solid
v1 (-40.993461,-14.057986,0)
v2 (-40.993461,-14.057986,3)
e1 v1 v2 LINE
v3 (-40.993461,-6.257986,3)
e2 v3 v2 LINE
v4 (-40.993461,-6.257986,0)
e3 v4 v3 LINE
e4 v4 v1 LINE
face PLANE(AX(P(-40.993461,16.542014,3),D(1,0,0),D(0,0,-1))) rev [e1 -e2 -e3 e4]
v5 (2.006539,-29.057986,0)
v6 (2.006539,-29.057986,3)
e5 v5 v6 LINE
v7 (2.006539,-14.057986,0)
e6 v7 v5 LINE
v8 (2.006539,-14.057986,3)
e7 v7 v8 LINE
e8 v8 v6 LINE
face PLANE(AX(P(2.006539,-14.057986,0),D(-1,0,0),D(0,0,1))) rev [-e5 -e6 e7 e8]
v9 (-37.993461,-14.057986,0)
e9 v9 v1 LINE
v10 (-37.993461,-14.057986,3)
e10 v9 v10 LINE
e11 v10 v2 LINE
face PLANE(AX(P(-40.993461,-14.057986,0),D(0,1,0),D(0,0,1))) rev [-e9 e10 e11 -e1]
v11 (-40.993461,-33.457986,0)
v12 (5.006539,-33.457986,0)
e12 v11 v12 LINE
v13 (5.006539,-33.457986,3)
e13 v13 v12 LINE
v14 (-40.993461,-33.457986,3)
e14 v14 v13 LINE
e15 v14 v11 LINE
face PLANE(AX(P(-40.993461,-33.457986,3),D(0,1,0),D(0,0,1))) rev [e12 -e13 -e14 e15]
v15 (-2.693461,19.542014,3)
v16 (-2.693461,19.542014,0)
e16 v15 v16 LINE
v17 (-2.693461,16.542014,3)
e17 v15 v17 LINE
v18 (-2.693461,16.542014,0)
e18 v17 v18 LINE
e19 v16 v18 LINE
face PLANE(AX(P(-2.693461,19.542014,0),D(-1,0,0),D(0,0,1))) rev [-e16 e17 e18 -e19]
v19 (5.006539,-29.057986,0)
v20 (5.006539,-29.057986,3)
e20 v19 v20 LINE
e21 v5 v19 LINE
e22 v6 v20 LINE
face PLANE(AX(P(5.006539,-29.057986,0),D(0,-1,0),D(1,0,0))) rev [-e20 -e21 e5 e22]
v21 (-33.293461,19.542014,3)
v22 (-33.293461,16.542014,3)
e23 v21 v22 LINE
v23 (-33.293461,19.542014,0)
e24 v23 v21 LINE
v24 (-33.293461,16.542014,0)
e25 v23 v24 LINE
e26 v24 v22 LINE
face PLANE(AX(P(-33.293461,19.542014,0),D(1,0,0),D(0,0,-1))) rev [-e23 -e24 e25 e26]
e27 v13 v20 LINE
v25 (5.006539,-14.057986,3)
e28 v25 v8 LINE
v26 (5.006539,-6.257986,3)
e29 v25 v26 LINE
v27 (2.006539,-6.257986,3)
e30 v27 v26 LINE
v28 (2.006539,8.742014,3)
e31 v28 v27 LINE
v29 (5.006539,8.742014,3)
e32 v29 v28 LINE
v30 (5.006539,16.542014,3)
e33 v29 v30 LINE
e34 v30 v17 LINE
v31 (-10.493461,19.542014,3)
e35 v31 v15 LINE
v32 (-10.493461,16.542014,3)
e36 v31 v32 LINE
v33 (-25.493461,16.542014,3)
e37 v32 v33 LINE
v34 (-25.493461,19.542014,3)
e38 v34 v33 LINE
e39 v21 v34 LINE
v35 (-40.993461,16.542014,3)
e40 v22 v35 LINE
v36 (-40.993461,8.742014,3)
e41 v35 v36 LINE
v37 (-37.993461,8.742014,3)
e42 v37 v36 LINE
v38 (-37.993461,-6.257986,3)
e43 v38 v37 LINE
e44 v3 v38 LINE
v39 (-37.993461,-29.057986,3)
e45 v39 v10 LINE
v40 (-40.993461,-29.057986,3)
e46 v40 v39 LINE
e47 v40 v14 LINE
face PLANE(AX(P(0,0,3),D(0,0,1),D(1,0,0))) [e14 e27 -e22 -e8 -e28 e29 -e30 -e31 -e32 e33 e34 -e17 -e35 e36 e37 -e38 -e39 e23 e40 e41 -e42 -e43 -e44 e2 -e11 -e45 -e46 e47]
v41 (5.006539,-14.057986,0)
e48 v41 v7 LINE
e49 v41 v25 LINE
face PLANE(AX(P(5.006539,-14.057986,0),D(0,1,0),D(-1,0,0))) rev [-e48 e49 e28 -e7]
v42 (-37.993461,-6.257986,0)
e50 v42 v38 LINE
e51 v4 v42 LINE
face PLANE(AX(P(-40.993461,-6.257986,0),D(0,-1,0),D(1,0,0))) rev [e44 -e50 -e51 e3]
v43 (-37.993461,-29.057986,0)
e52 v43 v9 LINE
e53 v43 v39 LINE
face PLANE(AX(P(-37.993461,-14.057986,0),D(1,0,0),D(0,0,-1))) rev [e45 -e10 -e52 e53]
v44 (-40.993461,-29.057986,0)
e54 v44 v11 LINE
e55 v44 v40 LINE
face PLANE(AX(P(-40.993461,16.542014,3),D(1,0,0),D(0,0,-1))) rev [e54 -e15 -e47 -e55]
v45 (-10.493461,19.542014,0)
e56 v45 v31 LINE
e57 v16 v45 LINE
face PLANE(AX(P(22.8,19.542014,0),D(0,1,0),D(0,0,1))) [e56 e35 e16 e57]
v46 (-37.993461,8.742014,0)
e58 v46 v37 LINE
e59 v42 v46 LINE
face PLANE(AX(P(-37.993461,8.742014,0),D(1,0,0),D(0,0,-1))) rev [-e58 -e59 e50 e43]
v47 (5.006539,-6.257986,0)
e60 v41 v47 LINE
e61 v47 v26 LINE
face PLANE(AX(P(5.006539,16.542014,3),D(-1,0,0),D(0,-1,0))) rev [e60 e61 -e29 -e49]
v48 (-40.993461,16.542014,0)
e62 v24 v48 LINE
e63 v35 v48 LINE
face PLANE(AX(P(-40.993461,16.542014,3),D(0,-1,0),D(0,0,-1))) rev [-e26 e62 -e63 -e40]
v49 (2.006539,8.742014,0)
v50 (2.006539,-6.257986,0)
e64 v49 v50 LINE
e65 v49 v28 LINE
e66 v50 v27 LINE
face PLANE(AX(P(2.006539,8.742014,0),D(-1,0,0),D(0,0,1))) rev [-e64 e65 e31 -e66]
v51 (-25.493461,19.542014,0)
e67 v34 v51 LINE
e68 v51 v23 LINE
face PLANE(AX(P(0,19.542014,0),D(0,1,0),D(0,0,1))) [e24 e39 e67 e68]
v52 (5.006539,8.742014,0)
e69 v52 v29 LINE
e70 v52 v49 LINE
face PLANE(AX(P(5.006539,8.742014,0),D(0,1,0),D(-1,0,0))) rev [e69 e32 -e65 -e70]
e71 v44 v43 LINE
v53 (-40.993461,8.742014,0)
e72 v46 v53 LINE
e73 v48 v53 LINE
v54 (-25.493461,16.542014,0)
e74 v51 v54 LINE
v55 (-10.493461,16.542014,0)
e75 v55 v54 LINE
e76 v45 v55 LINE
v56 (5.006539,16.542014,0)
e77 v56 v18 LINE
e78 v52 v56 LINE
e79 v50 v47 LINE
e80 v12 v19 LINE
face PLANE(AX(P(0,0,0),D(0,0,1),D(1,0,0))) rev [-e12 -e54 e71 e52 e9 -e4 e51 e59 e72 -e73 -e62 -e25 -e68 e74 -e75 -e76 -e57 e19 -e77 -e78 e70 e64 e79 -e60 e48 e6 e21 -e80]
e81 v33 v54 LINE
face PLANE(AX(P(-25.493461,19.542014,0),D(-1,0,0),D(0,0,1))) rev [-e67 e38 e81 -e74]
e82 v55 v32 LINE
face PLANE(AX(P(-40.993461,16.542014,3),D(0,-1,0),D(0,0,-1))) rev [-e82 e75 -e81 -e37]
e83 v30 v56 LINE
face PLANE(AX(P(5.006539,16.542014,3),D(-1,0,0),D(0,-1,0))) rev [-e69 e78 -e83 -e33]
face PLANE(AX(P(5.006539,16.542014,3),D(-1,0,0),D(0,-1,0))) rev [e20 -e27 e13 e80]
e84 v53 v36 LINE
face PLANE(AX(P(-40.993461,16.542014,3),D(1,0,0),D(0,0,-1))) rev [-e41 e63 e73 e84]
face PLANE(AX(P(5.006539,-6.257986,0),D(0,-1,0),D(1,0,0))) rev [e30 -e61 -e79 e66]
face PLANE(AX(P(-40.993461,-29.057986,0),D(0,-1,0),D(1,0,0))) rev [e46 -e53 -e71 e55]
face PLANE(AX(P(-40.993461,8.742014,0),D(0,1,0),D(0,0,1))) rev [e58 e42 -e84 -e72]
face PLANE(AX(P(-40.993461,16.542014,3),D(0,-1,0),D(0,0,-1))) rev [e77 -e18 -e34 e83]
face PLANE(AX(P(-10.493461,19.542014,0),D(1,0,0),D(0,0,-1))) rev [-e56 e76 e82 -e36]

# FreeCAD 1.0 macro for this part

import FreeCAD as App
import Part
import Sketcher

doc = App.newDocument("Part")
params = doc.addObject("Spreadsheet::Sheet", "Params")
for row, (alias, value) in enumerate([
    ("sketch1_width", "46 mm"),
    ("sketch1_height", "50 mm"),
    ("pad1_length", "3 mm"),
    ("sketch2_width", "3 mm"),
    ("sketch2_height", "15 mm"),
    ("linearpattern_pitch", "22.8 mm"),
    ("sketch3_height", "3 mm"),
    ("sketch3_width", "7.8 mm"),
    ("pad2_length", "3 mm"),
    ("linearpattern2_pitch", "22.8 mm"),
], start=1):
    params.set(f"A{row}", alias)
    params.set(f"B{row}", "=" + value)
    params.setAlias(f"B{row}", alias)

body = doc.addObject("PartDesign::Body", "Body")

sketch1 = body.newObject("Sketcher::SketchObject", "Sketch")
sketch1.AttachmentSupport = (doc.getObject("XY_Plane"), [""])
sketch1.MapMode = "FlatFace"
sketch1.addGeometry(Part.LineSegment(App.Vector(-40.993461, 16.542014, 0), App.Vector(-40.993461, -33.457986, 0)), False)
sketch1.addGeometry(Part.LineSegment(App.Vector(-40.993461, -33.457986, 0), App.Vector(5.006539, -33.457986, 0)), False)
sketch1.addGeometry(Part.LineSegment(App.Vector(5.006539, -33.457986, 0), App.Vector(5.006539, 16.542014, 0)), False)
sketch1.addGeometry(Part.LineSegment(App.Vector(5.006539, 16.542014, 0), App.Vector(-40.993461, 16.542014, 0)), False)
sketch1.addConstraint(Sketcher.Constraint("Coincident", 0, 2, 1, 1))
sketch1.addConstraint(Sketcher.Constraint("Coincident", 1, 2, 2, 1))
sketch1.addConstraint(Sketcher.Constraint("Coincident", 2, 2, 3, 1))
sketch1.addConstraint(Sketcher.Constraint("Coincident", 3, 2, 0, 1))
sketch1.addConstraint(Sketcher.Constraint("Vertical", 0))
sketch1.addConstraint(Sketcher.Constraint("Horizontal", 1))
sketch1.addConstraint(Sketcher.Constraint("Vertical", 2))
sketch1.addConstraint(Sketcher.Constraint("Horizontal", 3))
sketch1.addConstraint(Sketcher.Constraint("DistanceX", 1, 1, 1, 2, 46.0))
sketch1.addConstraint(Sketcher.Constraint("DistanceY", 0, 2, 0, 1, 50.0))
sketch1.addConstraint(Sketcher.Constraint("DistanceX", 0, 2, -1, 1, 40.993461))
sketch1.addConstraint(Sketcher.Constraint("DistanceY", 0, 2, -1, 1, 33.457986))
sketch1.setExpression("Constraints[8]", "Params.sketch1_width")
sketch1.setExpression("Constraints[9]", "Params.sketch1_height")
pad1 = body.newObject("PartDesign::Pad", "Pad")
pad1.Profile = sketch1
pad1.setExpression("Length", "Params.pad1_length")

sketch2 = body.newObject("Sketcher::SketchObject", "Sketch001")
sketch2.AttachmentSupport = (doc.getObject("XY_Plane"), [""])
sketch2.MapMode = "FlatFace"
sketch2.AttachmentOffset = App.Placement(App.Vector(0, 0, 3), App.Rotation())
sketch2.addGeometry(Part.LineSegment(App.Vector(-40.993461, 8.742014, 0), App.Vector(-40.993461, -6.257986, 0)), False)
sketch2.addGeometry(Part.LineSegment(App.Vector(-40.993461, -6.257986, 0), App.Vector(-37.993461, -6.257986, 0)), False)
sketch2.addGeometry(Part.LineSegment(App.Vector(-37.993461, -6.257986, 0), App.Vector(-37.993461, 8.742014, 0)), False)
sketch2.addGeometry(Part.LineSegment(App.Vector(-37.993461, 8.742014, 0), App.Vector(-40.993461, 8.742014, 0)), False)
sketch2.addGeometry(Part.LineSegment(App.Vector(2.006539, 8.742014, 0), App.Vector(2.006539, -6.257986, 0)), False)
sketch2.addGeometry(Part.LineSegment(App.Vector(2.006539, -6.257986, 0), App.Vector(5.006539, -6.257986, 0)), False)
sketch2.addGeometry(Part.LineSegment(App.Vector(5.006539, -6.257986, 0), App.Vector(5.006539, 8.742014, 0)), False)
sketch2.addGeometry(Part.LineSegment(App.Vector(5.006539, 8.742014, 0), App.Vector(2.006539, 8.742014, 0)), False)
sketch2.addConstraint(Sketcher.Constraint("Coincident", 0, 2, 1, 1))
sketch2.addConstraint(Sketcher.Constraint("Coincident", 1, 2, 2, 1))
sketch2.addConstraint(Sketcher.Constraint("Coincident", 2, 2, 3, 1))
sketch2.addConstraint(Sketcher.Constraint("Coincident", 3, 2, 0, 1))
sketch2.addConstraint(Sketcher.Constraint("Coincident", 4, 2, 5, 1))
sketch2.addConstraint(Sketcher.Constraint("Coincident", 5, 2, 6, 1))
sketch2.addConstraint(Sketcher.Constraint("Coincident", 6, 2, 7, 1))
sketch2.addConstraint(Sketcher.Constraint("Coincident", 7, 2, 4, 1))
sketch2.addConstraint(Sketcher.Constraint("Vertical", 0))
sketch2.addConstraint(Sketcher.Constraint("Horizontal", 1))
sketch2.addConstraint(Sketcher.Constraint("Vertical", 2))
sketch2.addConstraint(Sketcher.Constraint("Horizontal", 3))
sketch2.addConstraint(Sketcher.Constraint("Vertical", 4))
sketch2.addConstraint(Sketcher.Constraint("Horizontal", 5))
sketch2.addConstraint(Sketcher.Constraint("Vertical", 6))
sketch2.addConstraint(Sketcher.Constraint("Horizontal", 7))
sketch2.addConstraint(Sketcher.Constraint("Horizontal", 1, 2, 4, 2))
sketch2.addConstraint(Sketcher.Constraint("Horizontal", 3, 2, 6, 2))
sketch2.addConstraint(Sketcher.Constraint("Equal", 3, 5))
sketch2.addConstraint(Sketcher.Constraint("DistanceX", 1, 1, 1, 2, 3.0))
sketch2.addConstraint(Sketcher.Constraint("DistanceY", 0, 2, 0, 1, 15.0))
sketch2.addConstraint(Sketcher.Constraint("DistanceX", 1, 2, 4, 2, 40.0))
sketch2.addConstraint(Sketcher.Constraint("DistanceX", 0, 2, -1, 1, 40.993461))
sketch2.addConstraint(Sketcher.Constraint("DistanceY", 0, 2, -1, 1, 6.257986))
sketch2.setExpression("Constraints[19]", "Params.sketch2_width")
sketch2.setExpression("Constraints[20]", "Params.sketch2_height")
pocket1 = body.newObject("PartDesign::Pocket", "Pocket")
pocket1.Profile = sketch2
pocket1.Type = "ThroughAll"
doc.recompute()

linearpattern = body.newObject("PartDesign::LinearPattern", "LinearPattern")
linearpattern.Originals = [pocket1]
linearpattern.Direction = (doc.getObject("Y_Axis"), [""])
linearpattern.Mode = "offset"
linearpattern.setExpression("Offset", "Params.linearpattern_pitch")
linearpattern.Occurrences = 3
linearpattern.Reversed = True
body.Tip = linearpattern

sketch3 = body.newObject("Sketcher::SketchObject", "Sketch002")
sketch3.AttachmentSupport = (doc.getObject("XZ_Plane"), [""])
sketch3.MapMode = "FlatFace"
sketch3.AttachmentOffset = App.Placement(App.Vector(0, 0, -16.542014), App.Rotation())
sketch3.addGeometry(Part.LineSegment(App.Vector(-33.293461, 0, 0), App.Vector(-33.293461, 3, 0)), False)
sketch3.addGeometry(Part.LineSegment(App.Vector(-33.293461, 3, 0), App.Vector(-25.493461, 3, 0)), False)
sketch3.addGeometry(Part.LineSegment(App.Vector(-25.493461, 3, 0), App.Vector(-25.493461, 0, 0)), False)
sketch3.addGeometry(Part.LineSegment(App.Vector(-25.493461, 0, 0), App.Vector(-33.293461, 0, 0)), False)
sketch3.addConstraint(Sketcher.Constraint("Coincident", 0, 2, 1, 1))
sketch3.addConstraint(Sketcher.Constraint("Coincident", 1, 2, 2, 1))
sketch3.addConstraint(Sketcher.Constraint("Coincident", 2, 2, 3, 1))
sketch3.addConstraint(Sketcher.Constraint("Coincident", 3, 2, 0, 1))
sketch3.addConstraint(Sketcher.Constraint("Vertical", 0))
sketch3.addConstraint(Sketcher.Constraint("Horizontal", 1))
sketch3.addConstraint(Sketcher.Constraint("Vertical", 2))
sketch3.addConstraint(Sketcher.Constraint("Horizontal", 3))
sketch3.addConstraint(Sketcher.Constraint("PointOnObject", 2, 2, -1))
sketch3.addConstraint(Sketcher.Constraint("DistanceY", 0, 1, 0, 2, 3.0))
sketch3.addConstraint(Sketcher.Constraint("DistanceX", 1, 1, 1, 2, 7.8))
sketch3.addConstraint(Sketcher.Constraint("DistanceX", 0, 2, -1, 1, 33.293461))
sketch3.setExpression("Constraints[9]", "Params.sketch3_height")
sketch3.setExpression("Constraints[10]", "Params.sketch3_width")
pad2 = body.newObject("PartDesign::Pad", "Pad001")
pad2.Profile = sketch3
pad2.setExpression("Length", "Params.pad2_length")
pad2.Reversed = True
doc.recompute()

linearpattern2 = body.newObject("PartDesign::LinearPattern", "LinearPattern001")
linearpattern2.Originals = [pad2]
linearpattern2.Direction = (doc.getObject("X_Axis"), [""])
linearpattern2.Mode = "offset"
linearpattern2.setExpression("Offset", "Params.linearpattern2_pitch")
linearpattern2.Occurrences = 2
body.Tip = linearpattern2

doc.recompute()
